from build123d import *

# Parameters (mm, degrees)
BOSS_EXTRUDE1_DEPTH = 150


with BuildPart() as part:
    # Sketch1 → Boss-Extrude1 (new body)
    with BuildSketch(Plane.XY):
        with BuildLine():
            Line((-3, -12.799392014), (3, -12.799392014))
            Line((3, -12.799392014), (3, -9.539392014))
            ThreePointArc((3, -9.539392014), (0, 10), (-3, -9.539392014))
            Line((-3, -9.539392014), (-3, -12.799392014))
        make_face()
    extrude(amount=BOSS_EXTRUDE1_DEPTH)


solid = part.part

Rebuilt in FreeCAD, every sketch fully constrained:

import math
import FreeCAD as App
import Part
import Sketcher
from FreeCAD import Vector

doc = App.newDocument("Part")
body = doc.addObject("PartDesign::Body", "Body")

# Sketch on XY plane
sketch1 = body.newObject("Sketcher::SketchObject", "Sketch")
sketch1.AttachmentSupport = (doc.getObject("XY_Plane"), [""])
sketch1.MapMode = "FlatFace"
sketch1.addGeometry(Part.LineSegment(Vector(-3, -12.8, 0), Vector(3, -12.8, 0)), False)
sketch1.addGeometry(Part.LineSegment(Vector(3, -12.8, 0), Vector(3, -9.5, 0)), False)
sketch1.addGeometry(Part.ArcOfCircle(Part.Circle(Vector(0, 0, 0), Vector(0, 0, 1), 10), math.radians(-73), math.radians(253)), False)
sketch1.addGeometry(Part.LineSegment(Vector(-3, -9.5, 0), Vector(-3, -12.8, 0)), False)
sketch1.addConstraint(Sketcher.Constraint("Coincident", 0, 2, 1, 1))
sketch1.addConstraint(Sketcher.Constraint("Coincident", 1, 2, 2, 1))
sketch1.addConstraint(Sketcher.Constraint("Coincident", 2, 2, 3, 1))
sketch1.addConstraint(Sketcher.Constraint("Coincident", 3, 2, 0, 1))
sketch1.addConstraint(Sketcher.Constraint("Horizontal", 0))
sketch1.addConstraint(Sketcher.Constraint("Vertical", 1))
sketch1.addConstraint(Sketcher.Constraint("Vertical", 3))
sketch1.addConstraint(Sketcher.Constraint("Coincident", 2, 3, -1, 1))
sketch1.addConstraint(Sketcher.Constraint("Horizontal", 1, 2, 2, 2))
sketch1.addConstraint(Sketcher.Constraint("Radius", 2, 10.0))
sketch1.addConstraint(Sketcher.Constraint("DistanceX", 0, 1, 0, 2, 6.0))
sketch1.addConstraint(Sketcher.Constraint("DistanceY", 1, 1, 1, 2, 3.26))
pad1 = body.newObject("PartDesign::Pad", "Pad")
pad1.Profile = sketch1
pad1.Length = 150

doc.recompute()
